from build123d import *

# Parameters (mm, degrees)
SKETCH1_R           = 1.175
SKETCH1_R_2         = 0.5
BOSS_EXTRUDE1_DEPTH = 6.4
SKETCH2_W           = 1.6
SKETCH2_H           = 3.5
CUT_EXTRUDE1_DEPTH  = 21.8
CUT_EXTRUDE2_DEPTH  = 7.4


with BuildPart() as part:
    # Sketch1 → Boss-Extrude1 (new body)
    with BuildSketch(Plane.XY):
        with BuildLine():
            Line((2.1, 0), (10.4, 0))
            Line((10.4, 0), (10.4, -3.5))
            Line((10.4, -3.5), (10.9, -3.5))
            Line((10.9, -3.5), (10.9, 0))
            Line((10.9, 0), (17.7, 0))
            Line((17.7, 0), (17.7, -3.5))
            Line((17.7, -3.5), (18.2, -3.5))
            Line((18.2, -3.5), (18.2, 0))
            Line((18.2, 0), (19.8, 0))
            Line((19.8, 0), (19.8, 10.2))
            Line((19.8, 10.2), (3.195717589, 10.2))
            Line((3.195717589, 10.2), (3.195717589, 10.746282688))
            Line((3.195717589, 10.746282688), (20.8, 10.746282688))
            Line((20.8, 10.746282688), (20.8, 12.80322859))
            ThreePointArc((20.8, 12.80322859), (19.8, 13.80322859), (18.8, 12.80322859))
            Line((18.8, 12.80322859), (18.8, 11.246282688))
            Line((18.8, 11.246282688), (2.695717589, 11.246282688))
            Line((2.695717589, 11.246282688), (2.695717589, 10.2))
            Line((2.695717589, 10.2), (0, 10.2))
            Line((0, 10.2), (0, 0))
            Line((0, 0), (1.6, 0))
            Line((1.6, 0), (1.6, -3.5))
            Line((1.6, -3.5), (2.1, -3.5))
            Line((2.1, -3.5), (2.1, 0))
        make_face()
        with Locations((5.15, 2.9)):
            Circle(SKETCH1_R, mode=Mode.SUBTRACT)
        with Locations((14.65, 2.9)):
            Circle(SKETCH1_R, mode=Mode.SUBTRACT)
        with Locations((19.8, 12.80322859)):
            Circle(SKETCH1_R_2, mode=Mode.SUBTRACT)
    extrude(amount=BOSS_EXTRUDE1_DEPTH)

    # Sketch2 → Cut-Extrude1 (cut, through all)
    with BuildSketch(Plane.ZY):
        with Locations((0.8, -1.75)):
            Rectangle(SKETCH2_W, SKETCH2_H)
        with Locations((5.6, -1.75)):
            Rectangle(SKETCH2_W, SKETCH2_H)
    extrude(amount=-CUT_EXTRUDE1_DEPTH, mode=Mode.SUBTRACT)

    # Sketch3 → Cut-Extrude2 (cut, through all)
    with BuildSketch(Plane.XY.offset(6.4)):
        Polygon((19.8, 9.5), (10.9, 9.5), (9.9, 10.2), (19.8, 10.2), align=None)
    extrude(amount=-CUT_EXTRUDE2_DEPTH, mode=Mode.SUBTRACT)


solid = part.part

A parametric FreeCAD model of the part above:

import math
import FreeCAD as App
import Part
import Sketcher


def add_polygon(sketch, points):
    """Adds a closed chain of lines whose ends are joined by coincident constraints."""
    first, n = sketch.GeometryCount, len(points)
    for a, b in zip(points, points[1:] + points[:1]):
        sketch.addGeometry(Part.LineSegment(App.Vector(*a, 0), App.Vector(*b, 0)), False)
    for i in range(n):
        sketch.addConstraint(Sketcher.Constraint("Coincident", first + i, 2, first + (i + 1) % n, 1))

doc = App.newDocument("Part")
body = doc.addObject("PartDesign::Body", "Body")

sketch1 = body.newObject("Sketcher::SketchObject", "Sketch")
sketch1.AttachmentSupport = (doc.getObject("XY_Plane"), [""])
sketch1.MapMode = "FlatFace"
sketch1.addGeometry([
    Part.LineSegment(App.Vector(2.1, 0, 0), App.Vector(10.4, 0, 0)),
    Part.LineSegment(App.Vector(10.4, 0, 0), App.Vector(10.4, -3.5, 0)),
    Part.LineSegment(App.Vector(10.4, -3.5, 0), App.Vector(10.9, -3.5, 0)),
    Part.LineSegment(App.Vector(10.9, -3.5, 0), App.Vector(10.9, 0, 0)),
    Part.LineSegment(App.Vector(10.9, 0, 0), App.Vector(17.7, 0, 0)),
    Part.LineSegment(App.Vector(17.7, 0, 0), App.Vector(17.7, -3.5, 0)),
    Part.LineSegment(App.Vector(17.7, -3.5, 0), App.Vector(18.2, -3.5, 0)),
    Part.LineSegment(App.Vector(18.2, -3.5, 0), App.Vector(18.2, 0, 0)),
    Part.LineSegment(App.Vector(18.2, 0, 0), App.Vector(19.8, 0, 0)),
    Part.LineSegment(App.Vector(19.8, 0, 0), App.Vector(19.8, 10.2, 0)),
    Part.LineSegment(App.Vector(19.8, 10.2, 0), App.Vector(3.2, 10.2, 0)),
    Part.LineSegment(App.Vector(3.2, 10.2, 0), App.Vector(3.2, 10.7, 0)),
    Part.LineSegment(App.Vector(3.2, 10.7, 0), App.Vector(20.8, 10.7, 0)),
    Part.LineSegment(App.Vector(20.8, 10.7, 0), App.Vector(20.8, 12.8, 0)),
    Part.ArcOfCircle(Part.Circle(App.Vector(19.8, 12.8, 0), App.Vector(0, 0, 1), 1), math.radians(0), math.radians(180)),
    Part.LineSegment(App.Vector(18.8, 12.8, 0), App.Vector(18.8, 11.2, 0)),
    Part.LineSegment(App.Vector(18.8, 11.2, 0), App.Vector(2.7, 11.2, 0)),
    Part.LineSegment(App.Vector(2.7, 11.2, 0), App.Vector(2.7, 10.2, 0)),
    Part.LineSegment(App.Vector(2.7, 10.2, 0), App.Vector(0, 10.2, 0)),
    Part.LineSegment(App.Vector(0, 10.2, 0), App.Vector(0, 0, 0)),
    Part.LineSegment(App.Vector(0, 0, 0), App.Vector(1.6, 0, 0)),
    Part.LineSegment(App.Vector(1.6, 0, 0), App.Vector(1.6, -3.5, 0)),
    Part.LineSegment(App.Vector(1.6, -3.5, 0), App.Vector(2.1, -3.5, 0)),
    Part.LineSegment(App.Vector(2.1, -3.5, 0), App.Vector(2.1, 0, 0)),
    Part.Circle(App.Vector(5.2, 2.9, 0), App.Vector(0, 0, 1), 1.2),
    Part.Circle(App.Vector(14.7, 2.9, 0), App.Vector(0, 0, 1), 1.2),
    Part.Circle(App.Vector(19.8, 12.8, 0), App.Vector(0, 0, 1), 0.5),
], False)
sketch1.addConstraint([
    Sketcher.Constraint("Coincident", 0, 2, 1, 1),
    Sketcher.Constraint("Coincident", 1, 2, 2, 1),
    Sketcher.Constraint("Coincident", 2, 2, 3, 1),
    Sketcher.Constraint("Coincident", 3, 2, 4, 1),
    Sketcher.Constraint("Coincident", 4, 2, 5, 1),
    Sketcher.Constraint("Coincident", 5, 2, 6, 1),
    Sketcher.Constraint("Coincident", 6, 2, 7, 1),
    Sketcher.Constraint("Coincident", 7, 2, 8, 1),
    Sketcher.Constraint("Coincident", 8, 2, 9, 1),
    Sketcher.Constraint("Coincident", 9, 2, 10, 1),
    Sketcher.Constraint("Coincident", 10, 2, 11, 1),
    Sketcher.Constraint("Coincident", 11, 2, 12, 1),
    Sketcher.Constraint("Coincident", 12, 2, 13, 1),
    Sketcher.Constraint("Tangent", 13, 2, 14, 1),
    Sketcher.Constraint("Tangent", 14, 2, 15, 1),
    Sketcher.Constraint("Coincident", 15, 2, 16, 1),
    Sketcher.Constraint("Coincident", 16, 2, 17, 1),
    Sketcher.Constraint("Coincident", 17, 2, 18, 1),
    Sketcher.Constraint("Coincident", 18, 2, 19, 1),
    Sketcher.Constraint("Coincident", 19, 2, 20, 1),
    Sketcher.Constraint("Coincident", 20, 2, 21, 1),
    Sketcher.Constraint("Coincident", 21, 2, 22, 1),
    Sketcher.Constraint("Coincident", 22, 2, 23, 1),
    Sketcher.Constraint("Coincident", 23, 2, 0, 1),
    Sketcher.Constraint("Horizontal", 0),
    Sketcher.Constraint("Vertical", 1),
    Sketcher.Constraint("Horizontal", 2),
    Sketcher.Constraint("Vertical", 3),
    Sketcher.Constraint("Horizontal", 4),
    Sketcher.Constraint("Vertical", 5),
    Sketcher.Constraint("Horizontal", 6),
    Sketcher.Constraint("Vertical", 7),
    Sketcher.Constraint("Horizontal", 8),
    Sketcher.Constraint("Vertical", 9),
    Sketcher.Constraint("Horizontal", 10),
    Sketcher.Constraint("Vertical", 11),
    Sketcher.Constraint("Horizontal", 12),
    Sketcher.Constraint("Vertical", 13),
    Sketcher.Constraint("Vertical", 15),
    Sketcher.Constraint("Horizontal", 16),
    Sketcher.Constraint("Vertical", 17),
    Sketcher.Constraint("Horizontal", 18),
    Sketcher.Constraint("Vertical", 19),
    Sketcher.Constraint("Horizontal", 20),
    Sketcher.Constraint("Vertical", 21),
    Sketcher.Constraint("Horizontal", 22),
    Sketcher.Constraint("Vertical", 23),
    Sketcher.Constraint("Coincident", 19, 2, -1, 1),
    Sketcher.Constraint("Coincident", 26, 3, 14, 3),
    Sketcher.Constraint("Equal", 24, 25),
    Sketcher.Constraint("PointOnObject", 0, 2, -1),
    Sketcher.Constraint("PointOnObject", 3, 2, -1),
    Sketcher.Constraint("PointOnObject", 7, 2, -1),
    Sketcher.Constraint("Horizontal", 24, 3, 25, 3),
    Sketcher.Constraint("Horizontal", 2, 2, 5, 2),
    Sketcher.Constraint("Horizontal", 10, 2, 17, 2),
    Sketcher.Constraint("Horizontal", 6, 2, 21, 2),
    Sketcher.Constraint("Vertical", 26, 3, 8, 2),
    Sketcher.Constraint("Equal", 2, 6),
    Sketcher.Constraint("Equal", 8, 20),
    Sketcher.Constraint("Equal", 6, 22),
    Sketcher.Constraint("Diameter", 26, 1.0),
    Sketcher.Constraint("Radius", 14, 1.0),
    Sketcher.Constraint("Diameter", 24, 2.35),
    Sketcher.Constraint("DistanceX", 0, 1, 0, 2, 8.3),
    Sketcher.Constraint("DistanceX", 2, 1, 2, 2, 0.5),
    Sketcher.Constraint("DistanceX", 4, 1, 4, 2, 6.8),
    Sketcher.Constraint("DistanceX", 8, 1, 8, 2, 1.6),
    Sketcher.Constraint("DistanceY", 1, 2, 1, 1, 3.5),
    Sketcher.Constraint("DistanceY", 9, 1, 9, 2, 10.2),
    Sketcher.Constraint("DistanceY", -1, 1, 24, 3, 2.9),
    Sketcher.Constraint("DistanceX", 24, 3, 25, 3, 9.5),
    Sketcher.Constraint("DistanceY", 12, 2, 15, 2, 0.5),
    Sketcher.Constraint("DistanceX", 16, 2, 11, 2, 0.5),
    Sketcher.Constraint("DistanceX", -1, 1, 24, 3, 5.15),
    Sketcher.Constraint("DistanceX", 10, 2, 10, 1, 16.604282),
    Sketcher.Constraint("DistanceY", 11, 1, 11, 2, 0.546283),
    Sketcher.Constraint("DistanceY", 13, 1, 13, 2, 2.056946),
])
pad1 = body.newObject("PartDesign::Pad", "Pad")
pad1.Profile = sketch1
pad1.Length = 6.4

sketch2 = body.newObject("Sketcher::SketchObject", "Sketch001")
sketch2.AttachmentSupport = (doc.getObject("YZ_Plane"), [""])
sketch2.MapMode = "FlatFace"
add_polygon(sketch2, [(0, 0), (-3.5, 0), (-3.5, 1.6), (0, 1.6)])
add_polygon(sketch2, [(0, 4.8), (-3.5, 4.8), (-3.5, 6.4), (0, 6.4)])
sketch2.addConstraint([
    Sketcher.Constraint("Horizontal", 0),
    Sketcher.Constraint("Vertical", 1),
    Sketcher.Constraint("Horizontal", 2),
    Sketcher.Constraint("Vertical", 3),
    Sketcher.Constraint("Horizontal", 4),
    Sketcher.Constraint("Vertical", 5),
    Sketcher.Constraint("Horizontal", 6),
    Sketcher.Constraint("Vertical", 7),
    Sketcher.Constraint("Coincident", 3, 2, -1, 1),
    Sketcher.Constraint("PointOnObject", 6, 2, -2),
    Sketcher.Constraint("Vertical", 1, 2, 4, 2),
    Sketcher.Constraint("Equal", 3, 5),
    Sketcher.Constraint("DistanceX", 0, 2, 0, 1, 3.5),
    Sketcher.Constraint("DistanceY", 1, 1, 1, 2, 1.6),
    Sketcher.Constraint("DistanceY", -1, 1, 4, 2, 4.8),
])
pocket1 = body.newObject("PartDesign::Pocket", "Pocket")
pocket1.Profile = sketch2
pocket1.Type = "ThroughAll"
pocket1.Reversed = True

sketch3 = body.newObject("Sketcher::SketchObject", "Sketch002")
sketch3.AttachmentSupport = (doc.getObject("XY_Plane"), [""])
sketch3.MapMode = "FlatFace"
sketch3.AttachmentOffset = App.Placement(App.Vector(0, 0, 6.4), App.Rotation())
add_polygon(sketch3, [(10.9, 9.5), (19.8, 9.5), (19.8, 10.2), (9.9, 10.2)])
sketch3.addConstraint([
    Sketcher.Constraint("Horizontal", 0),
    Sketcher.Constraint("Vertical", 1),
    Sketcher.Constraint("Horizontal", 2),
    Sketcher.Constraint("DistanceX", 0, 1, 0, 2, 8.9),
    Sketcher.Constraint("DistanceX", 2, 2, 2, 1, 9.9),
    Sketcher.Constraint("DistanceY", 1, 1, 1, 2, 0.7),
    Sketcher.Constraint("DistanceX", -1, 1, 0, 2, 19.8),
    Sketcher.Constraint("DistanceY", -1, 1, 0, 2, 9.5),
])
pocket2 = body.newObject("PartDesign::Pocket", "Pocket001")
pocket2.Profile = sketch3
pocket2.Type = "ThroughAll"

doc.recompute()
